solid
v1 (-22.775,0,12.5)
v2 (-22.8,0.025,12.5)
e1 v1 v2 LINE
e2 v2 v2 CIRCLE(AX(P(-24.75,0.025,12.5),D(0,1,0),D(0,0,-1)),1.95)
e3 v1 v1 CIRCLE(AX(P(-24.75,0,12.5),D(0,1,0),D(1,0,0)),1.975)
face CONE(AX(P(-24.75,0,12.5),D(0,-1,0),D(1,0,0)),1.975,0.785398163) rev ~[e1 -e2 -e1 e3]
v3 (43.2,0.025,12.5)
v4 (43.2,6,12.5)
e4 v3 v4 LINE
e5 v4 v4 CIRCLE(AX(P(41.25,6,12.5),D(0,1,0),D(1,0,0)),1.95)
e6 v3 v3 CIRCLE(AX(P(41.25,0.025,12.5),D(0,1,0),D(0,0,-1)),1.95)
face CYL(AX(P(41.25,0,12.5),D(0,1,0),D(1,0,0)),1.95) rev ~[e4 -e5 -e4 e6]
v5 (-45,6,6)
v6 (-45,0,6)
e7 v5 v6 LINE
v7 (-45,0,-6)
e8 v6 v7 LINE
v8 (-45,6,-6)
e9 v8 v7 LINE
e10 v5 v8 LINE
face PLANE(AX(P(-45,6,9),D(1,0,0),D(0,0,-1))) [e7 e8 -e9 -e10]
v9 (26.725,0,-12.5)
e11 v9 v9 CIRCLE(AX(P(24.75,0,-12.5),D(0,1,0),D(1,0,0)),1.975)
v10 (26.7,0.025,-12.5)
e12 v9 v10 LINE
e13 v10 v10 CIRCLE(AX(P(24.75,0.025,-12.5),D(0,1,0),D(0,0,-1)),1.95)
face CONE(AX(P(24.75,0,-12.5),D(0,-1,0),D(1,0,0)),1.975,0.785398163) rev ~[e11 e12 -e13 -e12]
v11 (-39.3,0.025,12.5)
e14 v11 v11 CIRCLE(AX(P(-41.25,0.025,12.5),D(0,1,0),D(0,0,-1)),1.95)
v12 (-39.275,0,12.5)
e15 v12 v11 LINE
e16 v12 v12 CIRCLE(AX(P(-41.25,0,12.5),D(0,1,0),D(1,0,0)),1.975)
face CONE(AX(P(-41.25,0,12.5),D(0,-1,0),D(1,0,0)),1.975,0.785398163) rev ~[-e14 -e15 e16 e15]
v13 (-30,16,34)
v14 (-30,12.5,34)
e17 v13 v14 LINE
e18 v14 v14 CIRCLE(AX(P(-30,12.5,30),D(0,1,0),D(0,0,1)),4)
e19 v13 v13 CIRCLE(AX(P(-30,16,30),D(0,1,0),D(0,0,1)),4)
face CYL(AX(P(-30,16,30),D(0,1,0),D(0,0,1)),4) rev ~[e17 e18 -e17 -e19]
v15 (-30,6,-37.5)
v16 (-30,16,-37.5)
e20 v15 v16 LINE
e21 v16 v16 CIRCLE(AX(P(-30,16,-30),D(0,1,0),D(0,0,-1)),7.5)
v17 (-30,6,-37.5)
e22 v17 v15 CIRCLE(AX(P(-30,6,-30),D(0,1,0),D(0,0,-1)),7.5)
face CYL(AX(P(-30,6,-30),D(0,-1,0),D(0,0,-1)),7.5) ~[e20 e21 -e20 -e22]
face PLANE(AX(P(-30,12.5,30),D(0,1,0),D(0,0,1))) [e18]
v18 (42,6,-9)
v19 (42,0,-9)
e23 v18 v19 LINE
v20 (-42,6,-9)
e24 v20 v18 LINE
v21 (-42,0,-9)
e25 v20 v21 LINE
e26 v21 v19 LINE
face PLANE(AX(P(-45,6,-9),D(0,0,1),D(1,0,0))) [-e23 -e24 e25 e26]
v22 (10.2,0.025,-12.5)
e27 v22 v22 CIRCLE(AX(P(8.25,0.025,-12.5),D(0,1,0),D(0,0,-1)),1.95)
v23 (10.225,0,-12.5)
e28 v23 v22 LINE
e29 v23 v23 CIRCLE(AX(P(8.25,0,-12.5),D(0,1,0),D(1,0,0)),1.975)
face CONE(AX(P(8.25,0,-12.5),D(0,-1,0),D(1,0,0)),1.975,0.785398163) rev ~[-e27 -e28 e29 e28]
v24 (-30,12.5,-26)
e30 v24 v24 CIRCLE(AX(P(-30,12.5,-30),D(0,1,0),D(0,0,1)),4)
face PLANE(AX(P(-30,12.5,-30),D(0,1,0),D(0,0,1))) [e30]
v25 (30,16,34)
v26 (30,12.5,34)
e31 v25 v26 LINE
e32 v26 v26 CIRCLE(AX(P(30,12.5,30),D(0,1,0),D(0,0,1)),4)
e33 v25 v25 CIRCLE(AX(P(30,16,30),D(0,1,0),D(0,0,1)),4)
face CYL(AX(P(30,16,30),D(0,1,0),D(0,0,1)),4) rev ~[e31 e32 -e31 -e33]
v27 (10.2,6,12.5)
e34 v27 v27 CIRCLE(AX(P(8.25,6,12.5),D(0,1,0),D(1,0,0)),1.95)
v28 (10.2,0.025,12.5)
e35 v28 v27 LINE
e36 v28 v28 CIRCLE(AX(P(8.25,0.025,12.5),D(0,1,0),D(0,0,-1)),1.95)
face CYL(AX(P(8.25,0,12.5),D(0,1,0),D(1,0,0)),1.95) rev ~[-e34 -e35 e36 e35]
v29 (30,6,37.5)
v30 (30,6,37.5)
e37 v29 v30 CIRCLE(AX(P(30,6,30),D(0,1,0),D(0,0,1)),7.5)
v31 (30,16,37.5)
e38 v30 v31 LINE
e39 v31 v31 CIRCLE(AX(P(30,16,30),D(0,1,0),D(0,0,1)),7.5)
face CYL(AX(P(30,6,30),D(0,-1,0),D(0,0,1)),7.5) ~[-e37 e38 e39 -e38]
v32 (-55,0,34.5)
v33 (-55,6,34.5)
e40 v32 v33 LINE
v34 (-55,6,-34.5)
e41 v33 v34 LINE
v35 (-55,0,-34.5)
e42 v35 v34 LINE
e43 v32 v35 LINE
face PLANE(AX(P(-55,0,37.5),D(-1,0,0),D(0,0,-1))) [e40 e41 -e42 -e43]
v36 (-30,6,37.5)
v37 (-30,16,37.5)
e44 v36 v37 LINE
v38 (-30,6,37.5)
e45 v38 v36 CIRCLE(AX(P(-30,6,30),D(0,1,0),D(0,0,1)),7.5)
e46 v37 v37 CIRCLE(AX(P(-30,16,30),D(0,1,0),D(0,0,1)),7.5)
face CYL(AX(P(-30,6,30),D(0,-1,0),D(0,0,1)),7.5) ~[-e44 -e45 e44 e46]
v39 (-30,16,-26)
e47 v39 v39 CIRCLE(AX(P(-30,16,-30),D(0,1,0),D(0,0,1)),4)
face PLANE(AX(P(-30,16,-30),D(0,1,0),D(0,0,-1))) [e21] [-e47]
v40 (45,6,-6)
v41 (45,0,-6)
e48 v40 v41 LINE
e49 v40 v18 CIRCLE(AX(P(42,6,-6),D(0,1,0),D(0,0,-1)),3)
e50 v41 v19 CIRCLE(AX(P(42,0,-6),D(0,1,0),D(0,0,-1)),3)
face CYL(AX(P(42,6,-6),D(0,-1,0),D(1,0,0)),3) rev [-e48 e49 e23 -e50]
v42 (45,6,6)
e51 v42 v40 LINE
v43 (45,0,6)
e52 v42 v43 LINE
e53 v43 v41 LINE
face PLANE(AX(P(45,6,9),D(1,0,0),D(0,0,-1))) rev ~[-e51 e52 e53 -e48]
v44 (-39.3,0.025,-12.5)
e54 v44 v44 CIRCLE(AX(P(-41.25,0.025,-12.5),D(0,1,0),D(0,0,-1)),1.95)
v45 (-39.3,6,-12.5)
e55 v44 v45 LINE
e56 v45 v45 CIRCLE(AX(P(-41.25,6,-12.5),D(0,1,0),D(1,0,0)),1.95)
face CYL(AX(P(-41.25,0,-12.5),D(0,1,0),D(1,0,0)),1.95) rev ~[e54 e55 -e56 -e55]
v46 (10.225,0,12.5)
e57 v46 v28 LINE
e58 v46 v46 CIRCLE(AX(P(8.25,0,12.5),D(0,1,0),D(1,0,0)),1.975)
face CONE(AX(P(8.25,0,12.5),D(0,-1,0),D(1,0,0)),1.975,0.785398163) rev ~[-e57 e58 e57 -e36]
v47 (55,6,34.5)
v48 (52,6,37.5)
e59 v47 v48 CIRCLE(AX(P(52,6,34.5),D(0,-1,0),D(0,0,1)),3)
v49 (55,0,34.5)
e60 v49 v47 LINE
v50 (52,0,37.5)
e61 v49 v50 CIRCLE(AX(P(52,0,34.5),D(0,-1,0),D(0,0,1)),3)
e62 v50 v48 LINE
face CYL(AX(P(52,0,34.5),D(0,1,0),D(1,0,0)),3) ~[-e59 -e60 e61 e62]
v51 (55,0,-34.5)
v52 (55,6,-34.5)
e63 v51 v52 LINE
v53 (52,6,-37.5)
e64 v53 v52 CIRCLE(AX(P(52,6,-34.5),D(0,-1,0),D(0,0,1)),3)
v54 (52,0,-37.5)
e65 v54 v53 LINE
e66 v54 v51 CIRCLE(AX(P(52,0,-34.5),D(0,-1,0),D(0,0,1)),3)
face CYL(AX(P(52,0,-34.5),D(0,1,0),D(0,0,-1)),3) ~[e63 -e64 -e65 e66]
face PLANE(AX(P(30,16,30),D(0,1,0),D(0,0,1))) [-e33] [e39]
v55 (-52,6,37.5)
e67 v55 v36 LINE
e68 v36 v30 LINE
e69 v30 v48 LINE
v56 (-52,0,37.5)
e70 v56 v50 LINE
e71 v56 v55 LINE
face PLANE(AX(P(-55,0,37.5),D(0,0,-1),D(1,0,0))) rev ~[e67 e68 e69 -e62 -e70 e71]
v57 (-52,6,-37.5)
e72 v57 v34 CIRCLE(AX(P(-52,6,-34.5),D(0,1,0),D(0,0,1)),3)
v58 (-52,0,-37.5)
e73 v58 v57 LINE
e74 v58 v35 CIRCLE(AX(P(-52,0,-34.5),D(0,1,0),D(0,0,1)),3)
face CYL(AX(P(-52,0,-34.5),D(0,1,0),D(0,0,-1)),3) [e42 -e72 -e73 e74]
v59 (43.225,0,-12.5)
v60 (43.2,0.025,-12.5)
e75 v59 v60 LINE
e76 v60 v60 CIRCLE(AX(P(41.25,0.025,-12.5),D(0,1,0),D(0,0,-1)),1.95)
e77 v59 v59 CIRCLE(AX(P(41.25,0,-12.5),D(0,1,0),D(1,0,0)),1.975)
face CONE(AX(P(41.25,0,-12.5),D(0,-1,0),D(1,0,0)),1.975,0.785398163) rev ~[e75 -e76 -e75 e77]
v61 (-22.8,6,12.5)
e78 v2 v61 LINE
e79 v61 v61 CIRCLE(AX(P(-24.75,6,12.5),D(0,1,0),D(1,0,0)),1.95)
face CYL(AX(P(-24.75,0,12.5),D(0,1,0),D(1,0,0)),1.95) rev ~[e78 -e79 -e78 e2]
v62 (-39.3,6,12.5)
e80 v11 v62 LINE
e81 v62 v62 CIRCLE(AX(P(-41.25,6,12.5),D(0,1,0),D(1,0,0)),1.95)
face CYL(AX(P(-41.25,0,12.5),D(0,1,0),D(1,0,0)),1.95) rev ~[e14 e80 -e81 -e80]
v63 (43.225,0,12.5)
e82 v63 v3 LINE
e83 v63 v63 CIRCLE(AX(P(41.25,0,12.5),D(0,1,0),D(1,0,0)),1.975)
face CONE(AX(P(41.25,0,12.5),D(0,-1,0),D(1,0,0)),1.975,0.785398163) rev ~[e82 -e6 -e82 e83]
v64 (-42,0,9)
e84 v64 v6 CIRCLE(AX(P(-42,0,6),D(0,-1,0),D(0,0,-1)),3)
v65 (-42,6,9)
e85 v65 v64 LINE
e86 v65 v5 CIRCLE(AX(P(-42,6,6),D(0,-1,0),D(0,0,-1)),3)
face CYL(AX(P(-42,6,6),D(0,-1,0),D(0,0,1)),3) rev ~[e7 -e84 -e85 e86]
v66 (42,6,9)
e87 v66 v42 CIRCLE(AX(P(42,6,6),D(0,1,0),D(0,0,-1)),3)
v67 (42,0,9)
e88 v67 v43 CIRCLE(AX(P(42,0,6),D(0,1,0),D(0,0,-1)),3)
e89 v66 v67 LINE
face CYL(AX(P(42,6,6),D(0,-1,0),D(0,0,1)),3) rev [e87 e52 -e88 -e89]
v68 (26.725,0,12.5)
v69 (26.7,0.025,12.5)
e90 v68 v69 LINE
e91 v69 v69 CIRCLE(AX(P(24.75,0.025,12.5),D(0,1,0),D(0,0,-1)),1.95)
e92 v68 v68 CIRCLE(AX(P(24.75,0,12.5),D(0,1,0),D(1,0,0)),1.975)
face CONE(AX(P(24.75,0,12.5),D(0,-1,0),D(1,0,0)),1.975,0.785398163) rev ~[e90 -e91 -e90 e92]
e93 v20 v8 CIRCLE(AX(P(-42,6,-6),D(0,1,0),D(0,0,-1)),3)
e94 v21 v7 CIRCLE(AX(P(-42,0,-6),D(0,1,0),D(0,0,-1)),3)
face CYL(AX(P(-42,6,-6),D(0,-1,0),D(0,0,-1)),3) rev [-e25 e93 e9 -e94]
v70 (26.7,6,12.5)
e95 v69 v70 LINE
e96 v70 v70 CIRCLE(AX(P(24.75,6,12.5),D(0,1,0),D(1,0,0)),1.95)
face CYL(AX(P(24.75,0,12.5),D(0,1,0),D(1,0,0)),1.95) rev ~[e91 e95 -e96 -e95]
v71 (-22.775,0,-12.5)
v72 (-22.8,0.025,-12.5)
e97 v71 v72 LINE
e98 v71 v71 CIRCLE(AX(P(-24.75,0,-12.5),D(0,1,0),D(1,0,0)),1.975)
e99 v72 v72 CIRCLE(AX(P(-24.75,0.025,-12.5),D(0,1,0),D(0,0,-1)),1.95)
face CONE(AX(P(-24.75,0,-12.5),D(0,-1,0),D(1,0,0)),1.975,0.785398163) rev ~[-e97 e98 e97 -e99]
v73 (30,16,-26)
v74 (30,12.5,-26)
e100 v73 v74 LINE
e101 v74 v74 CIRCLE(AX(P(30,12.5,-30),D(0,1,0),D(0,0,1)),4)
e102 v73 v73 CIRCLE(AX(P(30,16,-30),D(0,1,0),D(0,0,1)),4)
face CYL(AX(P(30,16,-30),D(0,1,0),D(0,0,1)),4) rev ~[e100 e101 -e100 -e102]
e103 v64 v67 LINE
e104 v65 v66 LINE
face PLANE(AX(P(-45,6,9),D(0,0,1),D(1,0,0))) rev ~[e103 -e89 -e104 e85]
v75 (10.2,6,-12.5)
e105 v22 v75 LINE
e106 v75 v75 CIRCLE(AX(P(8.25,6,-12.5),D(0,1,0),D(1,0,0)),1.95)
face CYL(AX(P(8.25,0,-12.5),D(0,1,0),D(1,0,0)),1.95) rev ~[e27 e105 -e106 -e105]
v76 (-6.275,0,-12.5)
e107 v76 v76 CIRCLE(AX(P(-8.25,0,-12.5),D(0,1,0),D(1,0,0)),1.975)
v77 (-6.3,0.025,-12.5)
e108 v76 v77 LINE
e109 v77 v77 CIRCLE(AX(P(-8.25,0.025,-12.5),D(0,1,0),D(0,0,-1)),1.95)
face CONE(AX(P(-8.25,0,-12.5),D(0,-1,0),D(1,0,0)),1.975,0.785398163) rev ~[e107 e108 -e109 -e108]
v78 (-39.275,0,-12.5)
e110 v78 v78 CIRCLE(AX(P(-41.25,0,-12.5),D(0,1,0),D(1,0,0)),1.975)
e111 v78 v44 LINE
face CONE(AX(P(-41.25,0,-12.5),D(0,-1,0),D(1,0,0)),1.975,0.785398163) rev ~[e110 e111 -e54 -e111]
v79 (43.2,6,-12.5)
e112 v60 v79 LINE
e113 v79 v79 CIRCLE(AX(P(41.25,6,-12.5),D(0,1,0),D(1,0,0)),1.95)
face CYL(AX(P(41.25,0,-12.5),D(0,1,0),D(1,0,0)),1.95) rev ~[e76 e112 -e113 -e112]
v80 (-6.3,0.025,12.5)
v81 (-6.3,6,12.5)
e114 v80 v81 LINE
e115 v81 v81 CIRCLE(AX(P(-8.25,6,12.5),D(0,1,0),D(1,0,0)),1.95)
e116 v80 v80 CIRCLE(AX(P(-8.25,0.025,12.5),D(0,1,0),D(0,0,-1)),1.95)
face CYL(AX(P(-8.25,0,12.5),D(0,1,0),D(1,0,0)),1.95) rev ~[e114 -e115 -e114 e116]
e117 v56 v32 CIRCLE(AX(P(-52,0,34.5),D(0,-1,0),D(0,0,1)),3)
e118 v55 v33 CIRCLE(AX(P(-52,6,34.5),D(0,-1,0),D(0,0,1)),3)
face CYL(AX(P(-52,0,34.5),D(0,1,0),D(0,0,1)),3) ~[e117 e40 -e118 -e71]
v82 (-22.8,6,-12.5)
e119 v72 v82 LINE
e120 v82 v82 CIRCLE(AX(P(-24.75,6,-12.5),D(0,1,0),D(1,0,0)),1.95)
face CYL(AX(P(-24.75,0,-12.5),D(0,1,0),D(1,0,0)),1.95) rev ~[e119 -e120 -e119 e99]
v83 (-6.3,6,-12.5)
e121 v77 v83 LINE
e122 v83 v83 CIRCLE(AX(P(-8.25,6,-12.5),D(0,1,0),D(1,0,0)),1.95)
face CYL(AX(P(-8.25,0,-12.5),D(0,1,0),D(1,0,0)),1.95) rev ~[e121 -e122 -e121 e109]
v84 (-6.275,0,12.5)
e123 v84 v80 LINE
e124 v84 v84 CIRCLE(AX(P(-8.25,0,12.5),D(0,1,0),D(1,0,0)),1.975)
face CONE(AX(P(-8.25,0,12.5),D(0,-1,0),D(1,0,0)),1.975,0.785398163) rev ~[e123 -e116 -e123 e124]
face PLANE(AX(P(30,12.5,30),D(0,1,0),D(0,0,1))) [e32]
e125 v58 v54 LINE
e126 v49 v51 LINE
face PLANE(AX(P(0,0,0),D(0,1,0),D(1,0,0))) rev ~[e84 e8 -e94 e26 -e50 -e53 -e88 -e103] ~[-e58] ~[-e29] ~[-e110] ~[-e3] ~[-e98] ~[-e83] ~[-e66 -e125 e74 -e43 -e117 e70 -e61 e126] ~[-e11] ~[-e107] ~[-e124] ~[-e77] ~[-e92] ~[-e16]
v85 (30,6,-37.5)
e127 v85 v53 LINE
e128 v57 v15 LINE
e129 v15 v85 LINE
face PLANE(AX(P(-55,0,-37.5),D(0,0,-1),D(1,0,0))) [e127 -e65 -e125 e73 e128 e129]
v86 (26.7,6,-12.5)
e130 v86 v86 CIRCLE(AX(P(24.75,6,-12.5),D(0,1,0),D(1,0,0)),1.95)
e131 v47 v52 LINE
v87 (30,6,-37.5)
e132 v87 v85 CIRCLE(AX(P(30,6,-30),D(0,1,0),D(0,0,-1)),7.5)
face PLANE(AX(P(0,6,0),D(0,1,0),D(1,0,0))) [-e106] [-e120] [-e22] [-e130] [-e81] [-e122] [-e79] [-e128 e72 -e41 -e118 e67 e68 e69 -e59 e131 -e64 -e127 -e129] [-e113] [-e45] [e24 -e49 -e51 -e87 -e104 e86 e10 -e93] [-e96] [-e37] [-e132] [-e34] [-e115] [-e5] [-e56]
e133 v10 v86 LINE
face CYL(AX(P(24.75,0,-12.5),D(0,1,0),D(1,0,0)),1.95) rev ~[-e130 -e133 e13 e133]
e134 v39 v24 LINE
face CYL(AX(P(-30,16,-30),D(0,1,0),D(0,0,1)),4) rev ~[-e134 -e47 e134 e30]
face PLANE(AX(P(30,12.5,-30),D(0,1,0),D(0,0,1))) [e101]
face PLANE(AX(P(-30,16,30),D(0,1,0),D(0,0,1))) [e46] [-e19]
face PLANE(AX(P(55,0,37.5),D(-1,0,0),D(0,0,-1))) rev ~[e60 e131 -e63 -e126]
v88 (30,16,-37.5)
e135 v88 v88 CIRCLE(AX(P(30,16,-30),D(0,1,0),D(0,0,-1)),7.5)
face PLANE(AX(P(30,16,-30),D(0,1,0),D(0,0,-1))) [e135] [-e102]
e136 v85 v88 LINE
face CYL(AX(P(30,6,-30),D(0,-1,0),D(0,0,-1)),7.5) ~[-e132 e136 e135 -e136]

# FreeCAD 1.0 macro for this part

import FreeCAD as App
import Part
import Sketcher
from FreeCAD import Vector


def edges_at(feature, points):
    """Names of the edges that pass closest to the given points."""
    edges = feature.Shape.Edges
    near = lambda p: min(range(len(edges)), key=lambda i: edges[i].distToShape(Part.Vertex(*p))[0])
    return sorted({f"Edge{near(p) + 1}" for p in points})


def add_polygon(sketch, points):
    """Adds a closed chain of lines whose ends are joined by coincident constraints."""
    first, n = sketch.GeometryCount, len(points)
    for a, b in zip(points, points[1:] + points[:1]):
        sketch.addGeometry(Part.LineSegment(App.Vector(*a, 0), App.Vector(*b, 0)), False)
    for i in range(n):
        sketch.addConstraint(Sketcher.Constraint("Coincident", first + i, 2, first + (i + 1) % n, 1))

doc = App.newDocument("Part")
body = doc.addObject("PartDesign::Body", "Body")

sketch1 = body.newObject("Sketcher::SketchObject", "Sketch")
sketch1.AttachmentSupport = (doc.getObject("XZ_Plane"), [""])
sketch1.MapMode = "FlatFace"
add_polygon(sketch1, [(-55, -38), (-55, 38), (55, 38), (55, -38)])
sketch1.addConstraint(Sketcher.Constraint("Vertical", 0))
sketch1.addConstraint(Sketcher.Constraint("Horizontal", 1))
sketch1.addConstraint(Sketcher.Constraint("Vertical", 2))
sketch1.addConstraint(Sketcher.Constraint("Horizontal", 3))
sketch1.addConstraint(Sketcher.Constraint("Symmetric", 0, 2, 2, 2, -1, 1))
sketch1.addConstraint(Sketcher.Constraint("DistanceX", 1, 1, 1, 2, 110.0))
sketch1.addConstraint(Sketcher.Constraint("DistanceY", 0, 1, 0, 2, 75.0))
pad1 = body.newObject("PartDesign::Pad", "Pad")
pad1.Profile = sketch1
pad1.Length = 6
pad1.Reversed = True

sketch2 = body.newObject("Sketcher::SketchObject", "Sketch001")
sketch2.AttachmentSupport = (doc.getObject("XZ_Plane"), [""])
sketch2.MapMode = "FlatFace"
sketch2.AttachmentOffset = App.Placement(Vector(0, 0, -6), App.Rotation())
add_polygon(sketch2, [(-45, -9), (-45, 9), (45, 9), (45, -9)])
sketch2.addConstraint(Sketcher.Constraint("Vertical", 0))
sketch2.addConstraint(Sketcher.Constraint("Horizontal", 1))
sketch2.addConstraint(Sketcher.Constraint("Vertical", 2))
sketch2.addConstraint(Sketcher.Constraint("Horizontal", 3))
sketch2.addConstraint(Sketcher.Constraint("Symmetric", 0, 2, 2, 2, -1, 1))
sketch2.addConstraint(Sketcher.Constraint("DistanceX", 1, 1, 1, 2, 90.0))
sketch2.addConstraint(Sketcher.Constraint("DistanceY", 0, 1, 0, 2, 18.0))
pocket1 = body.newObject("PartDesign::Pocket", "Pocket")
pocket1.Profile = sketch2
pocket1.Length = 10
pocket1.Reversed = True
doc.recompute()

fillet = body.newObject("PartDesign::Fillet", "Fillet")
fillet.Base = (pocket1, edges_at(pocket1, [
    (45, 3, -9),
    (45, 3, 9),
    (-45, 3, 9),
    (-45, 3, -9),
]))
fillet.Radius = 3

sketch3 = body.newObject("Sketcher::SketchObject", "Sketch002")
sketch3.AttachmentSupport = (doc.getObject("XZ_Plane"), [""])
sketch3.MapMode = "FlatFace"
sketch3.addGeometry(Part.Circle(Vector(0, 0, 0), Vector(0, 0, 1), 1.9), False)
sketch3.addGeometry(Part.Circle(Vector(-8.2, 12.5, 0), Vector(0, 0, 1), 1.9), False)
sketch3.addGeometry(Part.Circle(Vector(8.2, -12.5, 0), Vector(0, 0, 1), 1.9), False)
sketch3.addGeometry(Part.Circle(Vector(8.2, 12.5, 0), Vector(0, 0, 1), 1.9), False)
sketch3.addGeometry(Part.Circle(Vector(-8.2, -12.5, 0), Vector(0, 0, 1), 1.9), False)
sketch3.addGeometry(Part.Circle(Vector(-24.8, 12.5, 0), Vector(0, 0, 1), 1.9), False)
sketch3.addGeometry(Part.Circle(Vector(-41.2, 12.5, 0), Vector(0, 0, 1), 1.9), False)
sketch3.addGeometry(Part.Circle(Vector(-24.8, -12.5, 0), Vector(0, 0, 1), 1.9), False)
sketch3.addGeometry(Part.Circle(Vector(-41.2, -12.5, 0), Vector(0, 0, 1), 1.9), False)
sketch3.addGeometry(Part.Circle(Vector(24.8, -12.5, 0), Vector(0, 0, 1), 1.9), False)
sketch3.addGeometry(Part.Circle(Vector(41.2, -12.5, 0), Vector(0, 0, 1), 1.9), False)
sketch3.addGeometry(Part.Circle(Vector(24.8, 12.5, 0), Vector(0, 0, 1), 1.9), False)
sketch3.addGeometry(Part.Circle(Vector(41.2, 12.5, 0), Vector(0, 0, 1), 1.9), False)
sketch3.addConstraint(Sketcher.Constraint("Coincident", 0, 3, -1, 1))
sketch3.addConstraint(Sketcher.Constraint("Equal", 0, 1))
sketch3.addConstraint(Sketcher.Constraint("Equal", 1, 2))
sketch3.addConstraint(Sketcher.Constraint("Equal", 2, 3))
sketch3.addConstraint(Sketcher.Constraint("Equal", 3, 4))
sketch3.addConstraint(Sketcher.Constraint("Equal", 4, 5))
sketch3.addConstraint(Sketcher.Constraint("Equal", 5, 6))
sketch3.addConstraint(Sketcher.Constraint("Equal", 6, 7))
sketch3.addConstraint(Sketcher.Constraint("Equal", 7, 8))
sketch3.addConstraint(Sketcher.Constraint("Equal", 8, 9))
sketch3.addConstraint(Sketcher.Constraint("Equal", 9, 10))
sketch3.addConstraint(Sketcher.Constraint("Equal", 10, 11))
sketch3.addConstraint(Sketcher.Constraint("Equal", 11, 12))
sketch3.addConstraint(Sketcher.Constraint("Symmetric", 1, 3, 2, 3, -1, 1))
sketch3.addConstraint(Sketcher.Constraint("Symmetric", 3, 3, 4, 3, -1, 1))
sketch3.addConstraint(Sketcher.Constraint("Symmetric", 5, 3, 9, 3, -1, 1))
sketch3.addConstraint(Sketcher.Constraint("Symmetric", 6, 3, 10, 3, -1, 1))
sketch3.addConstraint(Sketcher.Constraint("Symmetric", 7, 3, 11, 3, -1, 1))
sketch3.addConstraint(Sketcher.Constraint("Symmetric", 8, 3, 12, 3, -1, 1))
sketch3.addConstraint(Sketcher.Constraint("Symmetric", 1, 3, 3, 3, -2))
sketch3.addConstraint(Sketcher.Constraint("Symmetric", 7, 3, 9, 3, -2))
sketch3.addConstraint(Sketcher.Constraint("Symmetric", 8, 3, 10, 3, -2))
sketch3.addConstraint(Sketcher.Constraint("Horizontal", 3, 3, 5, 3))
sketch3.addConstraint(Sketcher.Constraint("Horizontal", 5, 3, 6, 3))
sketch3.addConstraint(Sketcher.Constraint("Diameter", 0, 3.9))
sketch3.addConstraint(Sketcher.Constraint("DistanceY", 2, 3, 1, 3, 25.0))
sketch3.addConstraint(Sketcher.Constraint("DistanceX", 5, 3, 3, 3, 33.0))
sketch3.addConstraint(Sketcher.Constraint("DistanceX", 6, 3, 1, 3, 33.0))
sketch3.addConstraint(Sketcher.Constraint("DistanceX", 1, 3, 2, 3, 16.5))
doc.recompute()
hole = body.newObject("PartDesign::Hole", "Hole")
hole.Profile = sketch3
hole.ThreadType = "None"
hole.Diameter = 3.9
hole.DepthType = "Dimension"
hole.Depth = 15
hole.DrillPoint = "Angled"
hole.DrillPointAngle = 118
hole.HoleCutType = "Countersink"
hole.HoleCutDiameter = 3.95
hole.HoleCutCountersinkAngle = 90
doc.recompute()

fillet2 = body.newObject("PartDesign::Fillet", "Fillet001")
fillet2.Base = (hole, edges_at(hole, [
    (55, 3, 37.5),
    (-55, 3, 37.5),
    (-55, 3, -37.5),
    (55, 3, -37.5),
]))
fillet2.Radius = 3

sketch4 = body.newObject("Sketcher::SketchObject", "Sketch003")
sketch4.AttachmentSupport = (doc.getObject("XZ_Plane"), [""])
sketch4.MapMode = "FlatFace"
sketch4.AttachmentOffset = App.Placement(Vector(0, 0, -6), App.Rotation())
sketch4.addGeometry(Part.Circle(Vector(-30, 30, 0), Vector(0, 0, 1), 8), False)
sketch4.addGeometry(Part.Circle(Vector(30, 30, 0), Vector(0, 0, 1), 8), False)
sketch4.addGeometry(Part.Circle(Vector(30, -30, 0), Vector(0, 0, 1), 8), False)
sketch4.addGeometry(Part.Circle(Vector(-30, -30, 0), Vector(0, 0, 1), 8), False)
sketch4.addConstraint(Sketcher.Constraint("Equal", 0, 1))
sketch4.addConstraint(Sketcher.Constraint("Equal", 1, 2))
sketch4.addConstraint(Sketcher.Constraint("Equal", 2, 3))
sketch4.addConstraint(Sketcher.Constraint("Symmetric", 0, 3, 2, 3, -1, 1))
sketch4.addConstraint(Sketcher.Constraint("Symmetric", 1, 3, 3, 3, -1, 1))
sketch4.addConstraint(Sketcher.Constraint("Symmetric", 0, 3, 1, 3, -2))
sketch4.addConstraint(Sketcher.Constraint("Diameter", 0, 15.0))
sketch4.addConstraint(Sketcher.Constraint("DistanceX", 0, 3, -1, 1, 30.0))
sketch4.addConstraint(Sketcher.Constraint("DistanceY", -1, 1, 0, 3, 30.0))
pad2 = body.newObject("PartDesign::Pad", "Pad001")
pad2.Profile = sketch4
pad2.Length = 10
pad2.Reversed = True

sketch5 = body.newObject("Sketcher::SketchObject", "Sketch004")
sketch5.AttachmentSupport = (doc.getObject("XZ_Plane"), [""])
sketch5.MapMode = "FlatFace"
sketch5.AttachmentOffset = App.Placement(Vector(0, 0, -16), App.Rotation())
sketch5.addGeometry(Part.Circle(Vector(-30, -30, 0), Vector(0, 0, 1), 4), False)
sketch5.addGeometry(Part.Circle(Vector(30, -30, 0), Vector(0, 0, 1), 4), False)
sketch5.addGeometry(Part.Circle(Vector(30, 30, 0), Vector(0, 0, 1), 4), False)
sketch5.addGeometry(Part.Circle(Vector(-30, 30, 0), Vector(0, 0, 1), 4), False)
sketch5.addConstraint(Sketcher.Constraint("Equal", 0, 1))
sketch5.addConstraint(Sketcher.Constraint("Equal", 1, 2))
sketch5.addConstraint(Sketcher.Constraint("Equal", 2, 3))
sketch5.addConstraint(Sketcher.Constraint("Symmetric", 0, 3, 2, 3, -1, 1))
sketch5.addConstraint(Sketcher.Constraint("Symmetric", 1, 3, 3, 3, -1, 1))
sketch5.addConstraint(Sketcher.Constraint("Symmetric", 0, 3, 1, 3, -2))
sketch5.addConstraint(Sketcher.Constraint("Diameter", 0, 8.0))
sketch5.addConstraint(Sketcher.Constraint("DistanceX", 0, 3, -1, 1, 30.0))
sketch5.addConstraint(Sketcher.Constraint("DistanceY", 0, 3, -1, 1, 30.0))
pocket2 = body.newObject("PartDesign::Pocket", "Pocket001")
pocket2.Profile = sketch5
pocket2.Length = 3.5
pocket2.Reversed = True

doc.recompute()
